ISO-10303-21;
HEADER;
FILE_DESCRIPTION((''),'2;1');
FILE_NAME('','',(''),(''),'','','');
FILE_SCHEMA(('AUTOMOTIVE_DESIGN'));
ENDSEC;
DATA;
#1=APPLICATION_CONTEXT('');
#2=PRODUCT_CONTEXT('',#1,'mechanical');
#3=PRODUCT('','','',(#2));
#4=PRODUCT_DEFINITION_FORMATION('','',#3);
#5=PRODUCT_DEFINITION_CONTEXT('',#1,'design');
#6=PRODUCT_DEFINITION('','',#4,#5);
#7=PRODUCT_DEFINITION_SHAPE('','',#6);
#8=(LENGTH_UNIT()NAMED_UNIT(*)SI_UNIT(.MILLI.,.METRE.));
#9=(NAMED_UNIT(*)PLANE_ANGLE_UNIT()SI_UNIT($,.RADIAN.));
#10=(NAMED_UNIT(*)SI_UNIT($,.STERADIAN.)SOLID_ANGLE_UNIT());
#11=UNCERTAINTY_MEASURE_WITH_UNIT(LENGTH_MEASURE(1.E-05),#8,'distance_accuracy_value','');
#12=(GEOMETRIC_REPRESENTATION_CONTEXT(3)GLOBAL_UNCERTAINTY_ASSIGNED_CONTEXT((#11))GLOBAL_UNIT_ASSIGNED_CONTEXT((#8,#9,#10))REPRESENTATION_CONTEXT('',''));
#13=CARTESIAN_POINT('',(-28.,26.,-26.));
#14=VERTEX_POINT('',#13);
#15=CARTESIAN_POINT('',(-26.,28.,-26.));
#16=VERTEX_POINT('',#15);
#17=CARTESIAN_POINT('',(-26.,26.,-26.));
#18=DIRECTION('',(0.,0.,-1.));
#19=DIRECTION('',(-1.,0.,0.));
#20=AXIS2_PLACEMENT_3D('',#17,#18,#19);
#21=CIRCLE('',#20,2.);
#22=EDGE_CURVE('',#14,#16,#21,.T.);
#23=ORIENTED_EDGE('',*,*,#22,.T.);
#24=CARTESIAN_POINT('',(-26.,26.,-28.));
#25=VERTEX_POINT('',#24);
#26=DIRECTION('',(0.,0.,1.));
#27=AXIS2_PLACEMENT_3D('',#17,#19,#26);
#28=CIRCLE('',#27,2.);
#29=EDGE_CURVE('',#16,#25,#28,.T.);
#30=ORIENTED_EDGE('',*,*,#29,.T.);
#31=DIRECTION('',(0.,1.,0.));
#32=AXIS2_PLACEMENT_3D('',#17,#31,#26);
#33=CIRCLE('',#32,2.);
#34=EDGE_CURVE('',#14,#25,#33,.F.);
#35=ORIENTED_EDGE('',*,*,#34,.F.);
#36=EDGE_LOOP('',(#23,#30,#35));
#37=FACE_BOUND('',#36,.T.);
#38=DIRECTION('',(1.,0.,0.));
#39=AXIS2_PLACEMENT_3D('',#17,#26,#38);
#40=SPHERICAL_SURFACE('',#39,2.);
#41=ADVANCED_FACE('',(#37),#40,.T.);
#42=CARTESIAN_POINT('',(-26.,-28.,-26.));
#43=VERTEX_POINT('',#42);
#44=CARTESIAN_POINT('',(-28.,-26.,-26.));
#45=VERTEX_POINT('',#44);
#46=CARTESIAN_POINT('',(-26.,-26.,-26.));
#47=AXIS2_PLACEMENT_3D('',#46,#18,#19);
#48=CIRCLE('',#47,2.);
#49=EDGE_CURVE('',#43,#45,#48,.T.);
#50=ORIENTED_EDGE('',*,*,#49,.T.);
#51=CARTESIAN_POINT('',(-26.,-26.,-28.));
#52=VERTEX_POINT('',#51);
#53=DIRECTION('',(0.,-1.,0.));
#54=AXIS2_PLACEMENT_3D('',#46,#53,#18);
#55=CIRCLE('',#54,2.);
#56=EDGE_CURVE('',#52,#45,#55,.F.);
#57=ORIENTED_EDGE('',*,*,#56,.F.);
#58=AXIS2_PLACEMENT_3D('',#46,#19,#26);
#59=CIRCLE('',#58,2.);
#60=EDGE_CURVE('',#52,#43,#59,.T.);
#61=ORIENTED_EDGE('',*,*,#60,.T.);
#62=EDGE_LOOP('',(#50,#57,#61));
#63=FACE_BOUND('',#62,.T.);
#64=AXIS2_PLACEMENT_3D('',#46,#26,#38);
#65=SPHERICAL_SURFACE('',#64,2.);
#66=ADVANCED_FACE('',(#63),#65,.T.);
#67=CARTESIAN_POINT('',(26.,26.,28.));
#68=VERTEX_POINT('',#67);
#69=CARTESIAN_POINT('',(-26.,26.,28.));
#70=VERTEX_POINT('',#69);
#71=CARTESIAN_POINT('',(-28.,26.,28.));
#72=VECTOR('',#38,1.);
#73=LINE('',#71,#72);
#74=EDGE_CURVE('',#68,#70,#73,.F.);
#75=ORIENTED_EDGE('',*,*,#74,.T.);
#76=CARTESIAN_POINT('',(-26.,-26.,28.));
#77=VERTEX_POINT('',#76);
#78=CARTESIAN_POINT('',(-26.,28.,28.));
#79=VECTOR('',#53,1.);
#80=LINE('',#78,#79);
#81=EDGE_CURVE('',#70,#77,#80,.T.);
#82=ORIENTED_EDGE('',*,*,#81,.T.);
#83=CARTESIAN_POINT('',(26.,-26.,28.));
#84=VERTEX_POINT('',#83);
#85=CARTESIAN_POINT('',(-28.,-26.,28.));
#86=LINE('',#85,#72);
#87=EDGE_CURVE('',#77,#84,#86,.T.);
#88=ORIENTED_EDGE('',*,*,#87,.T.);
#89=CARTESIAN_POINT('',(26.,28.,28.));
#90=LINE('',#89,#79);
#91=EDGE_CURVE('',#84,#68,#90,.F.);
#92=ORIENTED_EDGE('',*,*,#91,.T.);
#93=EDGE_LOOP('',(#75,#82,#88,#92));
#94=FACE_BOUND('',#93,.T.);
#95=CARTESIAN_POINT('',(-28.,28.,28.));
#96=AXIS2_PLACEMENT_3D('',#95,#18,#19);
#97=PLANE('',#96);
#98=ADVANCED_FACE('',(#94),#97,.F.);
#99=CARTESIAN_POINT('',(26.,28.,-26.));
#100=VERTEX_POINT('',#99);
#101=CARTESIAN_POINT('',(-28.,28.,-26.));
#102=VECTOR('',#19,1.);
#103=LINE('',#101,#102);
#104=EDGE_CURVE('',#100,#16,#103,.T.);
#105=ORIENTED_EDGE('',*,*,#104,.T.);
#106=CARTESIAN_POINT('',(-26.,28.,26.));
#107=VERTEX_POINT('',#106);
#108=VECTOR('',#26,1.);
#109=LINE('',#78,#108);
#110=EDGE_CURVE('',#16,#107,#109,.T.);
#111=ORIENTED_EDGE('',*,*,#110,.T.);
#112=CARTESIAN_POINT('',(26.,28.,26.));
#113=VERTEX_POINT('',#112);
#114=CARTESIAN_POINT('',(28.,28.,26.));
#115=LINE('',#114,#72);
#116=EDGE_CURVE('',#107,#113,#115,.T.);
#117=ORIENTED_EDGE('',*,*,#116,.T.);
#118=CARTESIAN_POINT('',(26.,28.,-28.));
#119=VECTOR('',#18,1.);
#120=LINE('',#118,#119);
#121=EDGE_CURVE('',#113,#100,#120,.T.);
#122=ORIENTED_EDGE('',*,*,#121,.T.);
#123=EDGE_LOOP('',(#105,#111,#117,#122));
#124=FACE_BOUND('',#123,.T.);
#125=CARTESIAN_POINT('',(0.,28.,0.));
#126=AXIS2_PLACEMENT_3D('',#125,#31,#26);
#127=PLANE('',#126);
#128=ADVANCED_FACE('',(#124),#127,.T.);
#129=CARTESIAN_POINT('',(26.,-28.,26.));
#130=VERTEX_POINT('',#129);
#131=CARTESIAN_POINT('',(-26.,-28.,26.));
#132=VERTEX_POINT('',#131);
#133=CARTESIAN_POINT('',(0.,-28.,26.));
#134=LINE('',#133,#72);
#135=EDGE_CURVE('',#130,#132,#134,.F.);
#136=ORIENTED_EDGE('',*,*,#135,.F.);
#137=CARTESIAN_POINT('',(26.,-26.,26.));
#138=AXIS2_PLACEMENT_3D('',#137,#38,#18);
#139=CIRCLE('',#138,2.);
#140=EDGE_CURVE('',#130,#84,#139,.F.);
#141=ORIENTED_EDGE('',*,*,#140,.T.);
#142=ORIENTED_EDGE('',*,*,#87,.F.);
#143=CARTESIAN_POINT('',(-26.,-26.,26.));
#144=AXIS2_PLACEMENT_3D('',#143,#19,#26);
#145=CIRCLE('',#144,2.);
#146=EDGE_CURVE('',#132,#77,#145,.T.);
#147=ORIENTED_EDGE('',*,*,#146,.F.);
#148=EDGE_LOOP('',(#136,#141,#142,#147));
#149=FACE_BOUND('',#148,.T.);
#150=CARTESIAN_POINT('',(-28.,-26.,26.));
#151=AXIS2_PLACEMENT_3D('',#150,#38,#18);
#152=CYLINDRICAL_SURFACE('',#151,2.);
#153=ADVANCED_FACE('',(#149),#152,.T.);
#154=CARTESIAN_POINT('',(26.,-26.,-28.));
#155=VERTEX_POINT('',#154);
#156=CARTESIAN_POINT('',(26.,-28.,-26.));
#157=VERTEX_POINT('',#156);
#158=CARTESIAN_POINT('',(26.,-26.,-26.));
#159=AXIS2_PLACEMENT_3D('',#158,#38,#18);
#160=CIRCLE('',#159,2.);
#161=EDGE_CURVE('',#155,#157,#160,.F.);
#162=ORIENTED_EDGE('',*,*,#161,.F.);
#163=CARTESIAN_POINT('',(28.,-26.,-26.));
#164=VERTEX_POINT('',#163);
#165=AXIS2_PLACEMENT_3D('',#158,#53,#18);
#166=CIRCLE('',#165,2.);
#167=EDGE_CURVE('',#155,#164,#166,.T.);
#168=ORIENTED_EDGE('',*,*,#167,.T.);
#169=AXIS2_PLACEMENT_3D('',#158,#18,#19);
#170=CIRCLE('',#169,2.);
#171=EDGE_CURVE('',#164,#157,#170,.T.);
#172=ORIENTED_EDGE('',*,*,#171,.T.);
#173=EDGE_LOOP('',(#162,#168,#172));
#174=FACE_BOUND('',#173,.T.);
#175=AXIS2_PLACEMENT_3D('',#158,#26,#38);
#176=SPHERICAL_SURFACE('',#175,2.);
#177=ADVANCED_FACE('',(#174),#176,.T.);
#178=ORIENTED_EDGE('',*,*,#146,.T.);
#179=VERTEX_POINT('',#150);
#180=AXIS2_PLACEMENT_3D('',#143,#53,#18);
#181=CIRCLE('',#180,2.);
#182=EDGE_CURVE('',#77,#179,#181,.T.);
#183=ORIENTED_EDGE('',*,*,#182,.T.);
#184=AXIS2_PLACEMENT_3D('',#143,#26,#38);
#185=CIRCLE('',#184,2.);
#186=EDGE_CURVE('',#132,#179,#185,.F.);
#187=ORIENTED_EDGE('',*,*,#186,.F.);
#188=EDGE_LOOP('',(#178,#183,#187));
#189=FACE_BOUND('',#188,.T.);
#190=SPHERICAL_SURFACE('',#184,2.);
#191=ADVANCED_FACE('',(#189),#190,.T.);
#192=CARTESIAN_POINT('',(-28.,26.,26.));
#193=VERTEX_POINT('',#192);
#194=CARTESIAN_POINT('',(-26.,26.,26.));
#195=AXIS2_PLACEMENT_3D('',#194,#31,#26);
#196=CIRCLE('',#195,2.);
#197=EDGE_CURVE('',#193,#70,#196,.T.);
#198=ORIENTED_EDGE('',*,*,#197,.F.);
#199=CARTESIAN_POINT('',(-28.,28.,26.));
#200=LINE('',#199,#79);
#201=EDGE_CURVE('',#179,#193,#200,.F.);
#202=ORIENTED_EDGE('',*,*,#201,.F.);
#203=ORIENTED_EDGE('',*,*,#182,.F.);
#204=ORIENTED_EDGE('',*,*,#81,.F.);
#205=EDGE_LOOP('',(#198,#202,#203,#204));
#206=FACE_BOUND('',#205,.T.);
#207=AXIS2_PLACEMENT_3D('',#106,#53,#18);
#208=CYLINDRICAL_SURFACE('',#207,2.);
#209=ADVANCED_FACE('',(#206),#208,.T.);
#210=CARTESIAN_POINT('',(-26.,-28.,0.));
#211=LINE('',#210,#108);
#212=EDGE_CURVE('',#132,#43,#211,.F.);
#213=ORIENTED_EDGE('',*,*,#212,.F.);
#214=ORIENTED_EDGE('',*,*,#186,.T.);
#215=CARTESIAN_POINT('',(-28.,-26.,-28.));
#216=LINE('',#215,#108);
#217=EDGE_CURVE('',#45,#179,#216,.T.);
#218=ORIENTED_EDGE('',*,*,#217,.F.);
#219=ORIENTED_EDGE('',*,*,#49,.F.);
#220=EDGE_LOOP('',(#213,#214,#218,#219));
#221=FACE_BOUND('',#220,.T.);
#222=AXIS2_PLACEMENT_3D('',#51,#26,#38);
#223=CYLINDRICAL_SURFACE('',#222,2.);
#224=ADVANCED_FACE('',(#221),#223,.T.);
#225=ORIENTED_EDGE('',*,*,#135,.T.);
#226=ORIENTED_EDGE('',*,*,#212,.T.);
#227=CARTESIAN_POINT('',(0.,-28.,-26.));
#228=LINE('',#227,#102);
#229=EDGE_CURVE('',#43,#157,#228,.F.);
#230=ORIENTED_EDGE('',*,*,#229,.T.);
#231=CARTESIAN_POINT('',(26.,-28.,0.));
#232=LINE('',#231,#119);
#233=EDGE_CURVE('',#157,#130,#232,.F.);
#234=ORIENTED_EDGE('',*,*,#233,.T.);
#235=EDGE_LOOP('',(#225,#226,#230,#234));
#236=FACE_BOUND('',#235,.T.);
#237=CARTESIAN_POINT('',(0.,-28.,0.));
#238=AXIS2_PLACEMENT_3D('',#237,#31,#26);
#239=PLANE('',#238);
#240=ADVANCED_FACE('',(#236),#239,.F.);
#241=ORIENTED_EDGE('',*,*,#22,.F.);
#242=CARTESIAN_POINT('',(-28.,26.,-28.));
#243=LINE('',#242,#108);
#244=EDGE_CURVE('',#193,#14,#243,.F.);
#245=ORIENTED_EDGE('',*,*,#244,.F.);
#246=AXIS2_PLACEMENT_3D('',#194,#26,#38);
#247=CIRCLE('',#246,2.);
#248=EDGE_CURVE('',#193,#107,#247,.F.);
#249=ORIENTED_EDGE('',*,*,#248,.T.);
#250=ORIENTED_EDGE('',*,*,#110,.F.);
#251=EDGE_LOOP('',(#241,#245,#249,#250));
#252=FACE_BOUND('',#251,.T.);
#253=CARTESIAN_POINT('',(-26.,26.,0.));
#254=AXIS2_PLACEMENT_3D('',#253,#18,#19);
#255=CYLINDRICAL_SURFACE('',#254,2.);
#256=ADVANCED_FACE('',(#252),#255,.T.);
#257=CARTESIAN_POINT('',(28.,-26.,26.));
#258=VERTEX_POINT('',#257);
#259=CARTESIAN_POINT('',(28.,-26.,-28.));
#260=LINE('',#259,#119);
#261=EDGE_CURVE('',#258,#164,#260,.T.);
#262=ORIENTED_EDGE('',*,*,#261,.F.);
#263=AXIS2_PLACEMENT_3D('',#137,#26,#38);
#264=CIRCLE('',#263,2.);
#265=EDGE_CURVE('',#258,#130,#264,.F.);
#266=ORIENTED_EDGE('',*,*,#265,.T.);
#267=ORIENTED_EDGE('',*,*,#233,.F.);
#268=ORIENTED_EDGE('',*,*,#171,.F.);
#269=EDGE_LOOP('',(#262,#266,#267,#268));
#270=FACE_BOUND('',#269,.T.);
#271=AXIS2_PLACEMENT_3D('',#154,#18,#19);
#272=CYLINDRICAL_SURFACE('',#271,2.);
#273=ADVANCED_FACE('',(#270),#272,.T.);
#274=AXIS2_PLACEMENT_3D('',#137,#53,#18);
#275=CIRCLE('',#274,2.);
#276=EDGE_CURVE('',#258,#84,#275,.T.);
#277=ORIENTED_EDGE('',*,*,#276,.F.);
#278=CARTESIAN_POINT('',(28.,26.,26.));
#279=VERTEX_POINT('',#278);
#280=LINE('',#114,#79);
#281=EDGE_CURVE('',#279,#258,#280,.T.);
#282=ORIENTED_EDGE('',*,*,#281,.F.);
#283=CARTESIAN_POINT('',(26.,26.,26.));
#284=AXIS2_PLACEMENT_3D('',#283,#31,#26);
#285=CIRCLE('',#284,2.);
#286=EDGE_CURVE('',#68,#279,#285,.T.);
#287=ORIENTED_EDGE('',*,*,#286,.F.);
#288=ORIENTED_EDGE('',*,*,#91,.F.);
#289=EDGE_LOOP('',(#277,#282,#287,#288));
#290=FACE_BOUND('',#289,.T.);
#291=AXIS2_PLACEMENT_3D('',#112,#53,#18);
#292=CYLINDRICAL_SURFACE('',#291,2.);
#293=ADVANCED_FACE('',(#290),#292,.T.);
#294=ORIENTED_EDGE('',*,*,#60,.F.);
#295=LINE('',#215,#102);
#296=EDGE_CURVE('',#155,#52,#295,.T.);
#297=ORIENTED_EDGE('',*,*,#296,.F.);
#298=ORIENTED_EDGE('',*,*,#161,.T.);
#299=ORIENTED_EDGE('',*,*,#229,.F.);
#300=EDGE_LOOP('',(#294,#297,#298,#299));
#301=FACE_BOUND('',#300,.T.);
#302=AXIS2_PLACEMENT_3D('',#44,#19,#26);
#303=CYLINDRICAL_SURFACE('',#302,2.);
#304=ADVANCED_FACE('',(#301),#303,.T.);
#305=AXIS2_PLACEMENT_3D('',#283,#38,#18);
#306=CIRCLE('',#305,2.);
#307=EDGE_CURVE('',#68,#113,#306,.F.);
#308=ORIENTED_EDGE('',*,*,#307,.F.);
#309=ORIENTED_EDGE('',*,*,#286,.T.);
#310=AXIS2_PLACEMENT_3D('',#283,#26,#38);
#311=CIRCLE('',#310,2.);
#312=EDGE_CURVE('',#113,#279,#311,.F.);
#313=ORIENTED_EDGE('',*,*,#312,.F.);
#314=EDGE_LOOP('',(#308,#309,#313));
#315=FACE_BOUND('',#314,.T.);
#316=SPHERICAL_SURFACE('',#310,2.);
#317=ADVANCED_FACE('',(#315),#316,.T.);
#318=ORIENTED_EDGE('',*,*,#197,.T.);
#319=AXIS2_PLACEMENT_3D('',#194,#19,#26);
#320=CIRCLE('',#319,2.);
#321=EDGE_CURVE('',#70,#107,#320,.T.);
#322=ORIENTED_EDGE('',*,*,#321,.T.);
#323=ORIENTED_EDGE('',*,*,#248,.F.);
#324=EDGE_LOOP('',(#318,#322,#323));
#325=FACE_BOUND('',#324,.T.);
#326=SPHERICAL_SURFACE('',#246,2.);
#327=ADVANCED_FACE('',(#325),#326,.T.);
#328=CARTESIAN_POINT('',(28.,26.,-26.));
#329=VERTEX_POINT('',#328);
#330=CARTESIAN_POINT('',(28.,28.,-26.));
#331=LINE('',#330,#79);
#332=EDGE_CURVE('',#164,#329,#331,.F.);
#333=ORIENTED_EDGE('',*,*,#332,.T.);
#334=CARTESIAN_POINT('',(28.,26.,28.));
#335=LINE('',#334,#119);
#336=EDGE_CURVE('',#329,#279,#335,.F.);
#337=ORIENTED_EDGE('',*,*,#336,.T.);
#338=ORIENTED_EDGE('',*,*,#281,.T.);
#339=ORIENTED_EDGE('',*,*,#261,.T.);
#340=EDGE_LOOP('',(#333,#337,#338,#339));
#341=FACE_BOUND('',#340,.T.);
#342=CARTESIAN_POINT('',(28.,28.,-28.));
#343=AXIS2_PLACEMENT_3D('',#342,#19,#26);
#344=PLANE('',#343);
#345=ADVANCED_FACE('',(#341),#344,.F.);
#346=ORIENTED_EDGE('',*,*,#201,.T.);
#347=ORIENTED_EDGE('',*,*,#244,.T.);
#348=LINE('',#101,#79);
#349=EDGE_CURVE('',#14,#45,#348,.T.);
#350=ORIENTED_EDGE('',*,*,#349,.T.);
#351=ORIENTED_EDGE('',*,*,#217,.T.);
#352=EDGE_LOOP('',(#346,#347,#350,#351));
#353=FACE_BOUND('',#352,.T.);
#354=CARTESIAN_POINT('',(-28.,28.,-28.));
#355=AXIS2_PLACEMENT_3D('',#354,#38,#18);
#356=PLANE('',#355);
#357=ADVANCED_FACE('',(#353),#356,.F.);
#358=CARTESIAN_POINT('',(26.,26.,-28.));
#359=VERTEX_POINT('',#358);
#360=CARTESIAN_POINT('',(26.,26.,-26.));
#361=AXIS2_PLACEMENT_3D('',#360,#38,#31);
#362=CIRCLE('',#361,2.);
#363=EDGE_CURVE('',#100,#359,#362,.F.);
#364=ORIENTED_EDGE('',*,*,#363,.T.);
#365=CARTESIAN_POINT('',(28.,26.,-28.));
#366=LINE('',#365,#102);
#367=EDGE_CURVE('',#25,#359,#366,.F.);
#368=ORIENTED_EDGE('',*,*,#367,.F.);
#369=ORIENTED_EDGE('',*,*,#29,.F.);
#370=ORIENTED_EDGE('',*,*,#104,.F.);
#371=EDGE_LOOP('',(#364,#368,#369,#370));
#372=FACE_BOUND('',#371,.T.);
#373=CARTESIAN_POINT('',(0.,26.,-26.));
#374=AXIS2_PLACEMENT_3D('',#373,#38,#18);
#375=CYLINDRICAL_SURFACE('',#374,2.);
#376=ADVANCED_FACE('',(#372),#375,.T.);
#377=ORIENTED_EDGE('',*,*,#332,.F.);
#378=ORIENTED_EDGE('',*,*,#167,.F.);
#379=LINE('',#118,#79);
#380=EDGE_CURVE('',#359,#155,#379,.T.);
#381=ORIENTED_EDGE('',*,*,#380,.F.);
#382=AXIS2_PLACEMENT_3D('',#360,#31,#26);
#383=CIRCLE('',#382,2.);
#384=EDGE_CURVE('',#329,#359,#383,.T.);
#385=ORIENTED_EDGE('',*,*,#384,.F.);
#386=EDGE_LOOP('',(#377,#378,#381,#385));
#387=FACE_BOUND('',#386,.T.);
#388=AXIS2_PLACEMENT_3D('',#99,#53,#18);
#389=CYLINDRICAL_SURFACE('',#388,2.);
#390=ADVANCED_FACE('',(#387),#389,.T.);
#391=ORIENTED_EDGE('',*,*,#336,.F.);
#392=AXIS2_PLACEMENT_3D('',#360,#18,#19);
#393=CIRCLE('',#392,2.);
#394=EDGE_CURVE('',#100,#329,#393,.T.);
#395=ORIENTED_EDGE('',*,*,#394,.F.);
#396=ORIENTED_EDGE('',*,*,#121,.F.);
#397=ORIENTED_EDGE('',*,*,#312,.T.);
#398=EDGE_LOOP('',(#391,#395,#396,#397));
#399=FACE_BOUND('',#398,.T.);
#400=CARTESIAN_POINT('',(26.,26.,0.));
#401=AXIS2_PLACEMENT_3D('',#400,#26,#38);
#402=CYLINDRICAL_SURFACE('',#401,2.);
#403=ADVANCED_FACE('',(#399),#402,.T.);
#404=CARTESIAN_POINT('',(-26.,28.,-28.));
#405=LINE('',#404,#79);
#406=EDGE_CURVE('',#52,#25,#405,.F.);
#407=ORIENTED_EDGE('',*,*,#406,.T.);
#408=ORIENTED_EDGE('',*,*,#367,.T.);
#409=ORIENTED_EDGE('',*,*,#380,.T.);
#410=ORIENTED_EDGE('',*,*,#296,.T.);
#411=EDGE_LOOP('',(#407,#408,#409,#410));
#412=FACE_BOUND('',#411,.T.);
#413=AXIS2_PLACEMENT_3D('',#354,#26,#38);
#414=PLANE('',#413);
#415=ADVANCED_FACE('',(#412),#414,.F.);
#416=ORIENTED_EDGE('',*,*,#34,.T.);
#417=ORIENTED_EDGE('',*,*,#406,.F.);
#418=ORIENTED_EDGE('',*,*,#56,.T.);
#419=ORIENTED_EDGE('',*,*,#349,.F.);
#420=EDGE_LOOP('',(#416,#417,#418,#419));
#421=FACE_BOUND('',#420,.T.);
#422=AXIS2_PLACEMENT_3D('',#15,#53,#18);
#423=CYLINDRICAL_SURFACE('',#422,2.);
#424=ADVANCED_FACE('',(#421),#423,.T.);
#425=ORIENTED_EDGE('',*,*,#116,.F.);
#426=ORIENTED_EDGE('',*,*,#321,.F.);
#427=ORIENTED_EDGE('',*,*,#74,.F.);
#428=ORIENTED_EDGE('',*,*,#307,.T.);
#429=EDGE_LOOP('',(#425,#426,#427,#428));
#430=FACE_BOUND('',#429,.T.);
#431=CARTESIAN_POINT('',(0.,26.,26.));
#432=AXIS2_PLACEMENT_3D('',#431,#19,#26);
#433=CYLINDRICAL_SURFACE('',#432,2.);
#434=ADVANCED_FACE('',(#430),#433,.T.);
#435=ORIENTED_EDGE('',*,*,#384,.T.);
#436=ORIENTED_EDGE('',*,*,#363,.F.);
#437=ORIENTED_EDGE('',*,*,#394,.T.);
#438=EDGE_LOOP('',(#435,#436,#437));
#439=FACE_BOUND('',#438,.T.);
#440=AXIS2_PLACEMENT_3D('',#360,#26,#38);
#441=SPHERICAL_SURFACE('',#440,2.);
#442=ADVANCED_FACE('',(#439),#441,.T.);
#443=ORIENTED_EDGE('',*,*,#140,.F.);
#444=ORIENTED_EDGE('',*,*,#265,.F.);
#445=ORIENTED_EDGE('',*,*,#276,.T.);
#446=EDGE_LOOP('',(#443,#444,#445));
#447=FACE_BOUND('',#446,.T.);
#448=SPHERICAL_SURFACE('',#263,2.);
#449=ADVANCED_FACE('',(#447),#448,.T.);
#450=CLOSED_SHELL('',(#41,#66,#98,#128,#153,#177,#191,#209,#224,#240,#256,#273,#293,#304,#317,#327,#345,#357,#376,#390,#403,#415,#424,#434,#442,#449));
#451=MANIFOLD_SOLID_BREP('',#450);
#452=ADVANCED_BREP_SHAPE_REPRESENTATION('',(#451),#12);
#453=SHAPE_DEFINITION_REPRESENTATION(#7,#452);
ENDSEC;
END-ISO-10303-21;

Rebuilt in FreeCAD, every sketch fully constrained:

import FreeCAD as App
import Part
import Sketcher
from FreeCAD import Vector
Q = App.Units.Quantity


def add_polygon(sketch, points):
    """Adds a closed chain of lines whose ends are joined by coincident constraints."""
    first, n = sketch.GeometryCount, len(points)
    for a, b in zip(points, points[1:] + points[:1]):
        sketch.addGeometry(Part.LineSegment(App.Vector(*a, 0), App.Vector(*b, 0)), False)
    for i in range(n):
        sketch.addConstraint(Sketcher.Constraint("Coincident", first + i, 2, first + (i + 1) % n, 1))

doc = App.newDocument("Part")
body = doc.addObject("PartDesign::Body", "Body")

# Sketch on XZ plane
sketch1 = doc.addObject("Sketcher::SketchObject", "Sketch")
body.addObject(sketch1)
sketch1.AttachmentSupport = (doc.XZ_Plane, [""])
sketch1.MapMode = "FlatFace"
add_polygon(sketch1, [(-28, -28), (-28, 28), (28, 28), (28, -28)])  # lines 0-3
sketch1.addConstraint([
    Sketcher.Constraint("Vertical", 0),
    Sketcher.Constraint("Horizontal", 1),
    Sketcher.Constraint("Vertical", 2),
    Sketcher.Constraint("Horizontal", 3),
    Sketcher.Constraint("Symmetric", 0, 2, 2, 2, -1, 1),
    Sketcher.Constraint("Equal", 3, 0),
    Sketcher.Constraint("DistanceX", 1, 1, 1, 2, Q("56 mm")),
])
pad1 = doc.addObject("PartDesign::Pad", "Pad")
body.addObject(pad1)
pad1.Profile = sketch1
pad1.Length = 56
pad1.Midplane = True
doc.recompute()

fillet = doc.addObject("PartDesign::Fillet", "Fillet")
body.addObject(fillet)
fillet.Base = (pad1, ["Edge1"])
fillet.UseAllEdges = True
fillet.Radius = 2

doc.recompute()
